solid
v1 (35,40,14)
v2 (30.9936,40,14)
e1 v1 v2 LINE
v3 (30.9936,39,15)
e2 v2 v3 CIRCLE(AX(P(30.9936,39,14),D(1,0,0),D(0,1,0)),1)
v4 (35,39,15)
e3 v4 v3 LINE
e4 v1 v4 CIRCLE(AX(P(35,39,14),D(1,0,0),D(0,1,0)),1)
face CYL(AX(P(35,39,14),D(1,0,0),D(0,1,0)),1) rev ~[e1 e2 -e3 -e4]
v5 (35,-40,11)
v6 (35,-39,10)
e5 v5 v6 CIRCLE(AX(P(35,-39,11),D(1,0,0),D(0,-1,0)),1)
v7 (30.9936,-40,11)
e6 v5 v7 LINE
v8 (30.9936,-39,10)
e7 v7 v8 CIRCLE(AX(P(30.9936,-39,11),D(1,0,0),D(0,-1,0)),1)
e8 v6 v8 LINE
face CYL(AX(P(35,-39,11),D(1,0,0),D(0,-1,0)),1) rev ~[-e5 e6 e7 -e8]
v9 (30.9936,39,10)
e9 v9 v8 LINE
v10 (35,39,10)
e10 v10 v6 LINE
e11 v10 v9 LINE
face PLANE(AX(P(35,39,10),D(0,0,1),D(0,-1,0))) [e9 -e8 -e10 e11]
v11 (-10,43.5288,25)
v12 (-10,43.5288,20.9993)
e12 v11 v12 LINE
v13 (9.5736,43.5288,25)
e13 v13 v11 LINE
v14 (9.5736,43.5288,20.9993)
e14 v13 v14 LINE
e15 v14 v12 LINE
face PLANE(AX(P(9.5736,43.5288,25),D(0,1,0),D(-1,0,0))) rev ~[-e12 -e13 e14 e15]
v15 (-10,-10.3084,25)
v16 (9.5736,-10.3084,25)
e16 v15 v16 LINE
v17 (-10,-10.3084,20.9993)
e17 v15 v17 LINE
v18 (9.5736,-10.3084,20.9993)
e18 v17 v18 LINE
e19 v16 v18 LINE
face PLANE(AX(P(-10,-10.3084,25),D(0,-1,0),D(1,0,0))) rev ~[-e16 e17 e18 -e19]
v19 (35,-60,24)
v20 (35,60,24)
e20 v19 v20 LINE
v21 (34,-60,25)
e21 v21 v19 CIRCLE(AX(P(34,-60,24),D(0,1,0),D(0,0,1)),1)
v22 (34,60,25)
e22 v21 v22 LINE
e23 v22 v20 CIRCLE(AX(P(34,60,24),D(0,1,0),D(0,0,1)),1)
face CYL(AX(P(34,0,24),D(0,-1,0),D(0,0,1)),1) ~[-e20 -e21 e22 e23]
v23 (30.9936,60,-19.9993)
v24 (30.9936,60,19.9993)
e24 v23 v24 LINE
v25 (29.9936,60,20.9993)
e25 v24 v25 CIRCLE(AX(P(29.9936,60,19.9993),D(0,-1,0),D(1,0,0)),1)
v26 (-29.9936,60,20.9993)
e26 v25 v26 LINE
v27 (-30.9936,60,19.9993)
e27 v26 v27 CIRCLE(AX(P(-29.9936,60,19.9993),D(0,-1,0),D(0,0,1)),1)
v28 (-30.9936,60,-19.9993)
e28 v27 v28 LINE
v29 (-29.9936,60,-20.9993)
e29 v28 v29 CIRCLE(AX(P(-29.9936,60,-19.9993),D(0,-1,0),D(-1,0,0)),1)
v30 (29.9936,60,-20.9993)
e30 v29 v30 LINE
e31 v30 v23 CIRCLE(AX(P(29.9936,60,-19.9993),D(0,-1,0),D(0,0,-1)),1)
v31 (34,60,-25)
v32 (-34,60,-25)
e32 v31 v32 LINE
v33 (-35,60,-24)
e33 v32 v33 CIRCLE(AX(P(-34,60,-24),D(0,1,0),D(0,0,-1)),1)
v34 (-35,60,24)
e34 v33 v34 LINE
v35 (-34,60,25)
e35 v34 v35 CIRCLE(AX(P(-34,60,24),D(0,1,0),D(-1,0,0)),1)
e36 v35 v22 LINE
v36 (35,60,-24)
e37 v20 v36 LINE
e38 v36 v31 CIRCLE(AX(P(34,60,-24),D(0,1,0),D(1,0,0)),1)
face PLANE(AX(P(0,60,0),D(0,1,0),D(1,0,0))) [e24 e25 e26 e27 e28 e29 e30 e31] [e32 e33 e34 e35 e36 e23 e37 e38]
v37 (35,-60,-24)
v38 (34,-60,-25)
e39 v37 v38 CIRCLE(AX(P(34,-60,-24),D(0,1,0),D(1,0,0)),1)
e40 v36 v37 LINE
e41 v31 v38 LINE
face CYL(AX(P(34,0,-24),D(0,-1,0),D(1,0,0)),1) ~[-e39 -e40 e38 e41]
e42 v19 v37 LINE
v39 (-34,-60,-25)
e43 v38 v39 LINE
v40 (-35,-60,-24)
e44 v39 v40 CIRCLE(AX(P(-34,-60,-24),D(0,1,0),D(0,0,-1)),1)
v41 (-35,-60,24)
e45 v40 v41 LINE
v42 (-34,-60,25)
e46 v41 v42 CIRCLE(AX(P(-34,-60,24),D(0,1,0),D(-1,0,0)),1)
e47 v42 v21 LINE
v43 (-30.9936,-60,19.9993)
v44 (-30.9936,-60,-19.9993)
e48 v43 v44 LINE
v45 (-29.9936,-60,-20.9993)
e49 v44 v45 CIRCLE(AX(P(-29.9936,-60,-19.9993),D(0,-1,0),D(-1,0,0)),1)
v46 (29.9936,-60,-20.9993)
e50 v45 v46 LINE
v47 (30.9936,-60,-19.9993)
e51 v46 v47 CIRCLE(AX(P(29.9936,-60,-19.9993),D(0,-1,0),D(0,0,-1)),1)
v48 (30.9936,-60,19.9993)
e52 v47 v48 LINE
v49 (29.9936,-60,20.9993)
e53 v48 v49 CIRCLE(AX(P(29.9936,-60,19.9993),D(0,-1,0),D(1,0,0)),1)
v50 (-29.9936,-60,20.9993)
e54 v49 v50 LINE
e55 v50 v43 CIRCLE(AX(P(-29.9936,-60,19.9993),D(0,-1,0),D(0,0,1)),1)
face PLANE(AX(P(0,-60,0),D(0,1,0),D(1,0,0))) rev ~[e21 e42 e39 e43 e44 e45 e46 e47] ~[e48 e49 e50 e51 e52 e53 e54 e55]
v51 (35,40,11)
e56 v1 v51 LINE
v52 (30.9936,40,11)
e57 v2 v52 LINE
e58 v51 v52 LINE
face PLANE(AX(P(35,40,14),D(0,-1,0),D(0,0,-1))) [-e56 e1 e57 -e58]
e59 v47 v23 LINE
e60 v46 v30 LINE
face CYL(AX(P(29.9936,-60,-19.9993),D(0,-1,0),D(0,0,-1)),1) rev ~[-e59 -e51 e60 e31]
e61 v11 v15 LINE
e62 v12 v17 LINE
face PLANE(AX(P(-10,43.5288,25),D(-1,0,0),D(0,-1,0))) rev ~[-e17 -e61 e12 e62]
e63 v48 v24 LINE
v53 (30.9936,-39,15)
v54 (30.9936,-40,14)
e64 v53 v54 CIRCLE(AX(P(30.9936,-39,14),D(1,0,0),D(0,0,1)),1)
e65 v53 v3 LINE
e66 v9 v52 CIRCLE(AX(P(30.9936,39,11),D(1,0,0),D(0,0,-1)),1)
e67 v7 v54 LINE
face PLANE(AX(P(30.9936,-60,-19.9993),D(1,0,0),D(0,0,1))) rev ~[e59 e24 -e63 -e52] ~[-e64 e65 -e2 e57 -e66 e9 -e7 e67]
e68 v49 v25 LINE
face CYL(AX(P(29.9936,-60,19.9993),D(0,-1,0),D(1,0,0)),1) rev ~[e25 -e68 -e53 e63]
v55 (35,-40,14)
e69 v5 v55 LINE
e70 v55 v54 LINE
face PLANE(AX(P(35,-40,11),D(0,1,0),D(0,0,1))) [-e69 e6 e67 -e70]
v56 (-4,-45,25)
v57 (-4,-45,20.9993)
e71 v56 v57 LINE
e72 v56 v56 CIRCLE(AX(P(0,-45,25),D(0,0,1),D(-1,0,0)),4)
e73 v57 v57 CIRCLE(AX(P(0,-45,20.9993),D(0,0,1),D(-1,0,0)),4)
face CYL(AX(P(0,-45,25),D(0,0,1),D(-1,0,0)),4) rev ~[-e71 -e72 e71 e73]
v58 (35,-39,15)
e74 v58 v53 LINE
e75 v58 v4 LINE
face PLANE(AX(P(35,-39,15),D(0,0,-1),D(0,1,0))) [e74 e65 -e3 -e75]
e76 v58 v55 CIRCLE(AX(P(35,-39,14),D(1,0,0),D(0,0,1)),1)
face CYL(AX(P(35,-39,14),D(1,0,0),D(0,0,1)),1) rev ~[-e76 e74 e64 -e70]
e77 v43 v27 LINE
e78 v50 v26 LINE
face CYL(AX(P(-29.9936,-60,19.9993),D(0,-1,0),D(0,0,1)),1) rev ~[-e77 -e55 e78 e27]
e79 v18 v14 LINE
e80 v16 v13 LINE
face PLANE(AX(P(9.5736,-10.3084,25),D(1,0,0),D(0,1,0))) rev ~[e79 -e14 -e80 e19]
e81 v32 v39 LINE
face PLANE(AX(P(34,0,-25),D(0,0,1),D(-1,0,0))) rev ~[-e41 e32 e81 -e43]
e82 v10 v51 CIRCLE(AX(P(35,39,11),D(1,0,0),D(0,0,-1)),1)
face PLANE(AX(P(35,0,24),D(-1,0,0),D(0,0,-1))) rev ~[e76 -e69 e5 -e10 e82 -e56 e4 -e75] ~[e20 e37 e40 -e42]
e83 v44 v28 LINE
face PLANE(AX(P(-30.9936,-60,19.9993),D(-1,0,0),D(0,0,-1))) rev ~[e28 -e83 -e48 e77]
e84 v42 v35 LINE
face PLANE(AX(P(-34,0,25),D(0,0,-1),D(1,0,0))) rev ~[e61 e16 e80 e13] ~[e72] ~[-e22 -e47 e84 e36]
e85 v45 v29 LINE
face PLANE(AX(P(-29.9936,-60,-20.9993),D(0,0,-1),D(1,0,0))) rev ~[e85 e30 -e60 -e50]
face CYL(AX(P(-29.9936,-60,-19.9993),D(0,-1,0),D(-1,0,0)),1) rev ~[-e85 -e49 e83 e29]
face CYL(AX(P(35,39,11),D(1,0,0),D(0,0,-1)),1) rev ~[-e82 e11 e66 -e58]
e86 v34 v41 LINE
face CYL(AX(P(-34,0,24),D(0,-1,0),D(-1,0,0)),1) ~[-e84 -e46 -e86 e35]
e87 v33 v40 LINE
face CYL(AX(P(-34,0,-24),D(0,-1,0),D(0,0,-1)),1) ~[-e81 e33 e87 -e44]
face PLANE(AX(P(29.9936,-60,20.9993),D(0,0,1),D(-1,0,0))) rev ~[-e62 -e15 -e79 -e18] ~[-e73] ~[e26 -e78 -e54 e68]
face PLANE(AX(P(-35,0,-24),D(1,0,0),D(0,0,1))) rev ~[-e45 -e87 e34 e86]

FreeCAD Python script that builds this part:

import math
import FreeCAD as App
import Part
import Sketcher

V = App.Vector


def add_polygon(sketch, points):
    """Adds a closed chain of lines whose ends are joined by coincident constraints."""
    first, n = sketch.GeometryCount, len(points)
    for a, b in zip(points, points[1:] + points[:1]):
        sketch.addGeometry(Part.LineSegment(App.Vector(*a, 0), App.Vector(*b, 0)), False)
    for i in range(n):
        sketch.addConstraint(Sketcher.Constraint("Coincident", first + i, 2, first + (i + 1) % n, 1))

doc = App.newDocument("Part")
body = doc.addObject("PartDesign::Body", "Body")

sketch1 = body.newObject("Sketcher::SketchObject", "Sketch")
sketch1.AttachmentSupport = (doc.getObject("XZ_Plane"), [""])
sketch1.MapMode = "FlatFace"
sketch1.addGeometry([
    Part.ArcOfCircle(Part.Circle(V(-34, 24, 0), V(0, 0, 1), 1), math.radians(90), math.radians(180)),
    Part.LineSegment(V(-34, 25, 0), V(34, 25, 0)),
    Part.ArcOfCircle(Part.Circle(V(34, 24, 0), V(0, 0, 1), 1), math.radians(0), math.radians(90)),
    Part.LineSegment(V(35, 24, 0), V(35, -24, 0)),
    Part.ArcOfCircle(Part.Circle(V(34, -24, 0), V(0, 0, 1), 1), math.radians(-90), math.radians(0)),
    Part.LineSegment(V(34, -25, 0), V(-34, -25, 0)),
    Part.ArcOfCircle(Part.Circle(V(-34, -24, 0), V(0, 0, 1), 1), math.radians(180), math.radians(270)),
    Part.LineSegment(V(-35, -24, 0), V(-35, 24, 0)),
], False)
sketch1.addConstraint([
    Sketcher.Constraint("Tangent", 0, 1, 1, 1),
    Sketcher.Constraint("Tangent", 1, 2, 2, 2),
    Sketcher.Constraint("Tangent", 2, 1, 3, 1),
    Sketcher.Constraint("Tangent", 3, 2, 4, 2),
    Sketcher.Constraint("Tangent", 4, 1, 5, 1),
    Sketcher.Constraint("Tangent", 5, 2, 6, 2),
    Sketcher.Constraint("Tangent", 6, 1, 7, 1),
    Sketcher.Constraint("Tangent", 7, 2, 0, 2),
    Sketcher.Constraint("Horizontal", 1),
    Sketcher.Constraint("Vertical", 3),
    Sketcher.Constraint("Horizontal", 5),
    Sketcher.Constraint("Vertical", 7),
    Sketcher.Constraint("Equal", 0, 2),
    Sketcher.Constraint("Equal", 2, 4),
    Sketcher.Constraint("Equal", 4, 6),
    Sketcher.Constraint("Symmetric", 0, 3, 4, 3, -1, 1),
    Sketcher.Constraint("Radius", 0, 1.0),
    Sketcher.Constraint("DistanceY", 4, 1, 1, 2, 50.0),
    Sketcher.Constraint("DistanceX", 1, 1, 1, 2, 68.0),
])
pad1 = body.newObject("PartDesign::Pad", "Pad")
pad1.Profile = sketch1
pad1.Length = 120
pad1.Midplane = True

sketch2 = body.newObject("Sketcher::SketchObject", "Sketch001")
sketch2.AttachmentSupport = (doc.getObject("XZ_Plane"), [""])
sketch2.MapMode = "FlatFace"
sketch2.AttachmentOffset = App.Placement(V(0, 0, 60), App.Rotation())
sketch2.addGeometry([
    Part.ArcOfCircle(Part.Circle(V(-30, -20, 0), V(0, 0, 1), 1), math.radians(180), math.radians(270)),
    Part.LineSegment(V(-30, -21, 0), V(30, -21, 0)),
    Part.ArcOfCircle(Part.Circle(V(30, -20, 0), V(0, 0, 1), 1), math.radians(-90), math.radians(0)),
    Part.LineSegment(V(31, -20, 0), V(31, 20, 0)),
    Part.ArcOfCircle(Part.Circle(V(30, 20, 0), V(0, 0, 1), 1), math.radians(0), math.radians(90)),
    Part.LineSegment(V(30, 21, 0), V(-30, 21, 0)),
    Part.ArcOfCircle(Part.Circle(V(-30, 20, 0), V(0, 0, 1), 1), math.radians(90), math.radians(180)),
    Part.LineSegment(V(-31, 20, 0), V(-31, -20, 0)),
], False)
sketch2.addConstraint([
    Sketcher.Constraint("Tangent", 0, 2, 1, 1),
    Sketcher.Constraint("Tangent", 1, 2, 2, 1),
    Sketcher.Constraint("Tangent", 2, 2, 3, 1),
    Sketcher.Constraint("Tangent", 3, 2, 4, 1),
    Sketcher.Constraint("Tangent", 4, 2, 5, 1),
    Sketcher.Constraint("Tangent", 5, 2, 6, 1),
    Sketcher.Constraint("Tangent", 6, 2, 7, 1),
    Sketcher.Constraint("Tangent", 7, 2, 0, 1),
    Sketcher.Constraint("Horizontal", 1),
    Sketcher.Constraint("Vertical", 3),
    Sketcher.Constraint("Horizontal", 5),
    Sketcher.Constraint("Vertical", 7),
    Sketcher.Constraint("Equal", 0, 2),
    Sketcher.Constraint("Equal", 2, 4),
    Sketcher.Constraint("Equal", 4, 6),
    Sketcher.Constraint("Symmetric", 0, 3, 4, 3, -1, 1),
    Sketcher.Constraint("Radius", 0, 1.0),
    Sketcher.Constraint("DistanceX", 1, 1, 1, 2, 59.9872),
    Sketcher.Constraint("DistanceY", 3, 1, 3, 2, 39.9986),
])
pocket1 = body.newObject("PartDesign::Pocket", "Pocket")
pocket1.Profile = sketch2
pocket1.Length = 120

sketch3 = body.newObject("Sketcher::SketchObject", "Sketch002")
sketch3.AttachmentSupport = (doc.getObject("XY_Plane"), [""])
sketch3.MapMode = "FlatFace"
sketch3.AttachmentOffset = App.Placement(V(0, 0, 25), App.Rotation())
sketch3.addGeometry(Part.Circle(V(0, -45, 0), V(0, 0, 1), 4), False)
add_polygon(sketch3, [(-10, 43.5), (-10, -10.3), (9.6, -10.3), (9.6, 43.5)])
sketch3.addConstraint([
    Sketcher.Constraint("Vertical", 1),
    Sketcher.Constraint("Horizontal", 2),
    Sketcher.Constraint("Vertical", 3),
    Sketcher.Constraint("Horizontal", 4),
    Sketcher.Constraint("PointOnObject", 0, 3, -2),
    Sketcher.Constraint("Diameter", 0, 8.0),
    Sketcher.Constraint("DistanceY", 0, 3, -1, 1, 45.0),
    Sketcher.Constraint("DistanceX", 1, 2, -1, 1, 10.0),
    Sketcher.Constraint("DistanceX", 2, 1, 2, 2, 19.5736),
    Sketcher.Constraint("DistanceY", 1, 2, 1, 1, 53.8372),
    Sketcher.Constraint("DistanceY", 1, 2, -1, 1, 10.3084),
])
pocket2 = body.newObject("PartDesign::Pocket", "Pocket001")
pocket2.Profile = sketch3
pocket2.Length = 5

sketch4 = body.newObject("Sketcher::SketchObject", "Sketch003")
sketch4.AttachmentSupport = (doc.getObject("YZ_Plane"), [""])
sketch4.MapMode = "FlatFace"
sketch4.AttachmentOffset = App.Placement(V(0, 0, 35), App.Rotation())
sketch4.addGeometry([
    Part.LineSegment(V(39, 15, 0), V(-39, 15, 0)),
    Part.ArcOfCircle(Part.Circle(V(-39, 14, 0), V(0, 0, 1), 1), math.radians(90), math.radians(180)),
    Part.LineSegment(V(-40, 14, 0), V(-40, 11, 0)),
    Part.ArcOfCircle(Part.Circle(V(-39, 11, 0), V(0, 0, 1), 1), math.radians(180), math.radians(270)),
    Part.LineSegment(V(-39, 10, 0), V(39, 10, 0)),
    Part.ArcOfCircle(Part.Circle(V(39, 11, 0), V(0, 0, 1), 1), math.radians(-90), math.radians(0)),
    Part.LineSegment(V(40, 11, 0), V(40, 14, 0)),
    Part.ArcOfCircle(Part.Circle(V(39, 14, 0), V(0, 0, 1), 1), math.radians(0), math.radians(90)),
], False)
sketch4.addConstraint([
    Sketcher.Constraint("Tangent", 0, 2, 1, 1),
    Sketcher.Constraint("Tangent", 1, 2, 2, 1),
    Sketcher.Constraint("Tangent", 2, 2, 3, 1),
    Sketcher.Constraint("Tangent", 3, 2, 4, 1),
    Sketcher.Constraint("Tangent", 4, 2, 5, 1),
    Sketcher.Constraint("Tangent", 5, 2, 6, 1),
    Sketcher.Constraint("Tangent", 6, 2, 7, 1),
    Sketcher.Constraint("Tangent", 7, 2, 0, 1),
    Sketcher.Constraint("Horizontal", 0),
    Sketcher.Constraint("Vertical", 2),
    Sketcher.Constraint("Horizontal", 4),
    Sketcher.Constraint("Vertical", 6),
    Sketcher.Constraint("Equal", 1, 3),
    Sketcher.Constraint("Equal", 3, 5),
    Sketcher.Constraint("Equal", 5, 7),
    Sketcher.Constraint("Radius", 1, 1.0),
    Sketcher.Constraint("DistanceX", 0, 2, 0, 1, 78.0),
    Sketcher.Constraint("DistanceY", 2, 2, 2, 1, 3.0),
    Sketcher.Constraint("DistanceX", 1, 3, -1, 1, 39.0),
    Sketcher.Constraint("DistanceY", -1, 1, 1, 3, 14.0),
])
pocket3 = body.newObject("PartDesign::Pocket", "Pocket002")
pocket3.Profile = sketch4
pocket3.Length = 5

doc.recompute()
